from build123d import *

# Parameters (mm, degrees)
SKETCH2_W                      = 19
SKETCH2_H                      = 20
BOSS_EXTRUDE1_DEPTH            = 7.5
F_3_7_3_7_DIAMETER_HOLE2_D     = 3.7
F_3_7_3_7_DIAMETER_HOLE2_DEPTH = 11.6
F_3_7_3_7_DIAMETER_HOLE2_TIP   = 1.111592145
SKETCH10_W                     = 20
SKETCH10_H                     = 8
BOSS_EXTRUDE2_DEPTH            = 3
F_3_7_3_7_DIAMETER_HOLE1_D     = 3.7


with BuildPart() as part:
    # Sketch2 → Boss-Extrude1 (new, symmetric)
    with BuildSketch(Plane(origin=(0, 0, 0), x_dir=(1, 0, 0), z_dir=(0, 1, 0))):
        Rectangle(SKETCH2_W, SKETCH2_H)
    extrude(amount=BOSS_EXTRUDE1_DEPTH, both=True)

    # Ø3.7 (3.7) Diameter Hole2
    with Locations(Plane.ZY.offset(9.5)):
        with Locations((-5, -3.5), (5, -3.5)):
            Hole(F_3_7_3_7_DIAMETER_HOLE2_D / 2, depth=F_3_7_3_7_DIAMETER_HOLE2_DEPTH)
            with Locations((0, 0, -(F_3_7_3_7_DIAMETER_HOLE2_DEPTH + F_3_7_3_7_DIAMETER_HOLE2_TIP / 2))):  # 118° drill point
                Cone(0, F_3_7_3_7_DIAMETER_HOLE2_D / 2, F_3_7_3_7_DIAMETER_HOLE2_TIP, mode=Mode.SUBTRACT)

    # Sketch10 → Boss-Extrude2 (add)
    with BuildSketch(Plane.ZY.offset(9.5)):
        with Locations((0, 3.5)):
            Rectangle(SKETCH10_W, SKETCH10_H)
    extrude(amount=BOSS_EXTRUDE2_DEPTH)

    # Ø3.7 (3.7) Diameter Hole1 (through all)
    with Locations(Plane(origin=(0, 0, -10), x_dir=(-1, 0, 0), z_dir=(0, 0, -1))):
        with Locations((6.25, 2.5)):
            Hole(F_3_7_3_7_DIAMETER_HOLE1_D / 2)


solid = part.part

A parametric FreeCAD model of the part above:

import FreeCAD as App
import Part
import Sketcher

V = App.Vector
Q = App.Units.Quantity


def add_polygon(sketch, points):
    """Adds a closed chain of lines whose ends are joined by coincident constraints."""
    first, n = sketch.GeometryCount, len(points)
    for a, b in zip(points, points[1:] + points[:1]):
        sketch.addGeometry(Part.LineSegment(App.Vector(*a, 0), App.Vector(*b, 0)), False)
    for i in range(n):
        sketch.addConstraint(Sketcher.Constraint("Coincident", first + i, 2, first + (i + 1) % n, 1))

doc = App.newDocument("Part")
params = doc.addObject("Spreadsheet::Sheet", "Params")
for row, (alias, value) in enumerate([
    ("sketch1_width", "19 mm"),
    ("sketch1_height", "20 mm"),
    ("pad1_length", "15 mm"),
    ("sketch2_diameter", "3.7 mm"),
    ("hole_diameter", "3.7 mm"),
    ("hole_depth", "11.6 mm"),
    ("sketch3_width", "8 mm"),
    ("sketch3_height", "20 mm"),
    ("pad2_length", "3 mm"),
    ("sketch4_diameter", "3.7 mm"),
    ("hole2_diameter", "3.7 mm"),
], start=1):
    params.set(f"A{row}", alias)
    params.set(f"B{row}", "=" + value)
    params.setAlias(f"B{row}", alias)

body = doc.addObject("PartDesign::Body", "Body")

# Sketch on XZ plane
sketch1 = doc.addObject("Sketcher::SketchObject", "Sketch")
body.addObject(sketch1)
sketch1.AttachmentSupport = (doc.XZ_Plane, [""])
sketch1.MapMode = "FlatFace"
add_polygon(sketch1, [(-10, -10), (-10, 10), (10, 10), (10, -10)])  # lines 0-3
sketch1.addConstraint(Sketcher.Constraint("Vertical", 0))
sketch1.addConstraint(Sketcher.Constraint("Horizontal", 1))
sketch1.addConstraint(Sketcher.Constraint("Vertical", 2))
sketch1.addConstraint(Sketcher.Constraint("Horizontal", 3))
sketch1.addConstraint(Sketcher.Constraint("Symmetric", 0, 2, 2, 2, -1, 1))
sketch1.addConstraint(Sketcher.Constraint("DistanceX", 1, 1, 1, 2, Q("19 mm")))
sketch1.addConstraint(Sketcher.Constraint("DistanceY", 0, 1, 0, 2, Q("20 mm")))
sketch1.setExpression("Constraints[9]", "Params.sketch1_width")
sketch1.setExpression("Constraints[10]", "Params.sketch1_height")
pad1 = doc.addObject("PartDesign::Pad", "Pad")
body.addObject(pad1)
pad1.Profile = sketch1
pad1.setExpression("Length", "Params.pad1_length")
pad1.Midplane = True

# Sketch on YZ plane
sketch2 = doc.addObject("Sketcher::SketchObject", "Sketch001")
body.addObject(sketch2)
sketch2.AttachmentSupport = (doc.YZ_Plane, [""])
sketch2.MapMode = "FlatFace"
sketch2.AttachmentOffset = App.Placement(V(0, 0, -9.5), App.Rotation())
sketch2.addGeometry(Part.Circle(V(-3.5, -5, 0), V(0, 0, 1), 1.9), False)
sketch2.addGeometry(Part.Circle(V(-3.5, 5, 0), V(0, 0, 1), 1.9), False)
sketch2.addConstraint(Sketcher.Constraint("Equal", 0, 1))
sketch2.addConstraint(Sketcher.Constraint("Symmetric", 0, 3, 1, 3, -1))
sketch2.addConstraint(Sketcher.Constraint("Diameter", 0, Q("3.7 mm")))
sketch2.addConstraint(Sketcher.Constraint("DistanceY", 0, 3, -1, 1, Q("5 mm")))
sketch2.addConstraint(Sketcher.Constraint("DistanceX", 0, 3, -1, 1, Q("3.5 mm")))
sketch2.setExpression("Constraints[2]", "Params.sketch2_diameter")
doc.recompute()
hole = doc.addObject("PartDesign::Hole", "Hole")
body.addObject(hole)
hole.Profile = sketch2
hole.ThreadType = "None"
hole.setExpression("Diameter", "Params.hole_diameter")
hole.DepthType = "Dimension"
hole.setExpression("Depth", "Params.hole_depth")
hole.DrillPoint = "Angled"
hole.DrillPointAngle = 118
hole.Reversed = True

# Sketch on YZ plane
sketch3 = doc.addObject("Sketcher::SketchObject", "Sketch002")
body.addObject(sketch3)
sketch3.AttachmentSupport = (doc.YZ_Plane, [""])
sketch3.MapMode = "FlatFace"
sketch3.AttachmentOffset = App.Placement(V(0, 0, -9.5), App.Rotation())
add_polygon(sketch3, [(8, -10), (0, -10), (0, 10), (8, 10)])  # lines 0-3
sketch3.addConstraint(Sketcher.Constraint("Horizontal", 0))
sketch3.addConstraint(Sketcher.Constraint("Vertical", 1))
sketch3.addConstraint(Sketcher.Constraint("Horizontal", 2))
sketch3.addConstraint(Sketcher.Constraint("Vertical", 3))
sketch3.addConstraint(Sketcher.Constraint("DistanceX", 0, 2, 0, 1, Q("8 mm")))
sketch3.addConstraint(Sketcher.Constraint("DistanceY", 1, 1, 1, 2, Q("20 mm")))
sketch3.addConstraint(Sketcher.Constraint("DistanceY", 0, 2, -1, 1, Q("10 mm")))
sketch3.addConstraint(Sketcher.Constraint("DistanceX", 0, 2, -1, 1, Q("0.5 mm")))
sketch3.setExpression("Constraints[8]", "Params.sketch3_width")
sketch3.setExpression("Constraints[9]", "Params.sketch3_height")
pad2 = doc.addObject("PartDesign::Pad", "Pad001")
body.addObject(pad2)
pad2.Profile = sketch3
pad2.setExpression("Length", "Params.pad2_length")
pad2.Reversed = True

# Sketch on XY plane
sketch4 = doc.addObject("Sketcher::SketchObject", "Sketch003")
body.addObject(sketch4)
sketch4.AttachmentSupport = (doc.XY_Plane, [""])
sketch4.MapMode = "FlatFace"
sketch4.AttachmentOffset = App.Placement(V(0, 0, -10), App.Rotation())
sketch4.addGeometry(Part.Circle(V(-6.2, 2.5, 0), V(0, 0, 1), 1.9), False)
sketch4.addConstraint(Sketcher.Constraint("Diameter", 0, Q("3.7 mm")))
sketch4.addConstraint(Sketcher.Constraint("DistanceY", -1, 1, 0, 3, Q("2.5 mm")))
sketch4.addConstraint(Sketcher.Constraint("DistanceX", 0, 3, -1, 1, Q("6.25 mm")))
sketch4.setExpression("Constraints[0]", "Params.sketch4_diameter")
doc.recompute()
hole2 = doc.addObject("PartDesign::Hole", "Hole001")
body.addObject(hole2)
hole2.Profile = sketch4
hole2.ThreadType = "None"
hole2.setExpression("Diameter", "Params.hole2_diameter")
hole2.DepthType = "ThroughAll"
hole2.Reversed = True

doc.recompute()
